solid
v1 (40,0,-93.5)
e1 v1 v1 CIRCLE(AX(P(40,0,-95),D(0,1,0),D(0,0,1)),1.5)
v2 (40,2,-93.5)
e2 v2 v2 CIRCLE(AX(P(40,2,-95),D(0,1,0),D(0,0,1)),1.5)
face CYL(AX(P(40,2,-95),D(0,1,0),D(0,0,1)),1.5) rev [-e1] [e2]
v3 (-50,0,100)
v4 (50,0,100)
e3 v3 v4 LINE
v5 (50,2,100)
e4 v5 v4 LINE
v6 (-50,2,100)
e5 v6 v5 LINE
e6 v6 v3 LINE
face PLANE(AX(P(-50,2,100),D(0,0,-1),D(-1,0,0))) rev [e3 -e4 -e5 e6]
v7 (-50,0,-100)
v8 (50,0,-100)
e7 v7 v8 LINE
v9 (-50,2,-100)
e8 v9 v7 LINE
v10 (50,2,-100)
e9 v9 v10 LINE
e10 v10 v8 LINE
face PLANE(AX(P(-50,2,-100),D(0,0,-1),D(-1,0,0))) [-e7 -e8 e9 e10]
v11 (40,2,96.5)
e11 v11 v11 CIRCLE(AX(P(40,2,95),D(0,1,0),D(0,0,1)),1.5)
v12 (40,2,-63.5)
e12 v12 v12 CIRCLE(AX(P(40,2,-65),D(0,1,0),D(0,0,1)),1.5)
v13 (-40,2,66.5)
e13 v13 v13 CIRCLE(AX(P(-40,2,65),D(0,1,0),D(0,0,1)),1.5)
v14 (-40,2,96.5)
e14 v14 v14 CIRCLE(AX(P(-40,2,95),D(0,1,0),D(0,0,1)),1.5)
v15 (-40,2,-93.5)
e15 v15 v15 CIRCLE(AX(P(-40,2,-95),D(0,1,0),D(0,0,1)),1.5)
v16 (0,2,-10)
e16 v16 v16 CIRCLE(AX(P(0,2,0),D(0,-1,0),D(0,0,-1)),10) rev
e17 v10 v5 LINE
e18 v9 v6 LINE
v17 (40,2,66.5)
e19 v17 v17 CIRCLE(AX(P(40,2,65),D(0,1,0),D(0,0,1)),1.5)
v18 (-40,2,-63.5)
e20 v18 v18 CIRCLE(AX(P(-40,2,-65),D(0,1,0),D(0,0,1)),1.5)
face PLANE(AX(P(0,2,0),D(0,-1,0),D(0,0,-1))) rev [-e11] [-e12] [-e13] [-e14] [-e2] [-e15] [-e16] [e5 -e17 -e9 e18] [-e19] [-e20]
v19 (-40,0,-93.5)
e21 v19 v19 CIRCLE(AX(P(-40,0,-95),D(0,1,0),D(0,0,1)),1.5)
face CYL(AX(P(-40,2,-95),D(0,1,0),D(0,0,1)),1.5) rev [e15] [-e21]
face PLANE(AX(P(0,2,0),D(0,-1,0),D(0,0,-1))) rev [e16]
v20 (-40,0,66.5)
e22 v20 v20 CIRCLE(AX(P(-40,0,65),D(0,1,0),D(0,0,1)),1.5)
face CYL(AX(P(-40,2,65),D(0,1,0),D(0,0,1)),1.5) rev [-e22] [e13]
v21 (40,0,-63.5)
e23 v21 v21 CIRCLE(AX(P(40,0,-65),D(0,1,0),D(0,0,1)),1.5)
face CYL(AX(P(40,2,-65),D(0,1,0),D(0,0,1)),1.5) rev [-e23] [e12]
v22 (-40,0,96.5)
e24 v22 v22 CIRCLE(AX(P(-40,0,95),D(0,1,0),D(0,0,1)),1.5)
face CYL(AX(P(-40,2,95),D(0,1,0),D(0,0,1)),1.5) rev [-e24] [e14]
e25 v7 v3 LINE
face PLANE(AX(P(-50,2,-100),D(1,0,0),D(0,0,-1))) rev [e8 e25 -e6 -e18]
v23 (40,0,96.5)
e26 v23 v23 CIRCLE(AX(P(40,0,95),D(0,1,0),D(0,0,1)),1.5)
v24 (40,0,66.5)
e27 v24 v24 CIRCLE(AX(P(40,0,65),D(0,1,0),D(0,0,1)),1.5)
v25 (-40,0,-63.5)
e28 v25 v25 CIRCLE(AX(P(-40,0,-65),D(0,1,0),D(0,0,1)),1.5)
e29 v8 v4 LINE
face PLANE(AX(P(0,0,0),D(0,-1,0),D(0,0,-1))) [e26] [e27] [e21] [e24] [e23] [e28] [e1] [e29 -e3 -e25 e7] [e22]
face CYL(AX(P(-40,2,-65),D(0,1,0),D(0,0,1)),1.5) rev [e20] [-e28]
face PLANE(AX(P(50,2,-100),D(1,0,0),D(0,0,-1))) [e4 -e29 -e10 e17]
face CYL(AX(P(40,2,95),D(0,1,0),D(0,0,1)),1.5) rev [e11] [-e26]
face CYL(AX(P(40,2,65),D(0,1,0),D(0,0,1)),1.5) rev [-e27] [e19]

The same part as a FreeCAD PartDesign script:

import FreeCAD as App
import Part
import Sketcher
from FreeCAD import Vector

doc = App.newDocument("Part")
params = doc.addObject("Spreadsheet::Sheet", "Params")
for row, (alias, value) in enumerate([
    ("sketch1_width", "100 mm"),
    ("sketch1_height", "200 mm"),
    ("pad1_length", "2 mm"),
    ("sketch2_diameter", "3 mm"),
    ("hole_diameter", "3 mm"),
], start=1):
    params.set(f"A{row}", alias)
    params.set(f"B{row}", "=" + value)
    params.setAlias(f"B{row}", alias)

body = doc.addObject("PartDesign::Body", "Body")

# Sketch on XZ plane
sketch1 = doc.addObject("Sketcher::SketchObject", "Sketch")
body.addObject(sketch1)
sketch1.AttachmentSupport = (doc.XZ_Plane, [""])
sketch1.MapMode = "FlatFace"
sketch1.addGeometry([
    Part.LineSegment(Vector(-50, -100, 0), Vector(-50, 100, 0)),
    Part.LineSegment(Vector(-50, 100, 0), Vector(50, 100, 0)),
    Part.LineSegment(Vector(50, 100, 0), Vector(50, -100, 0)),
    Part.LineSegment(Vector(50, -100, 0), Vector(-50, -100, 0)),
], False)
sketch1.addConstraint([
    Sketcher.Constraint("Coincident", 0, 2, 1, 1),
    Sketcher.Constraint("Coincident", 1, 2, 2, 1),
    Sketcher.Constraint("Coincident", 2, 2, 3, 1),
    Sketcher.Constraint("Coincident", 3, 2, 0, 1),
    Sketcher.Constraint("Vertical", 0),
    Sketcher.Constraint("Horizontal", 1),
    Sketcher.Constraint("Vertical", 2),
    Sketcher.Constraint("Horizontal", 3),
    Sketcher.Constraint("Symmetric", 0, 2, 2, 2, -1, 1),
    Sketcher.Constraint("DistanceX", 1, 1, 1, 2, 100.0),
    Sketcher.Constraint("DistanceY", 0, 1, 0, 2, 200.0),
])
sketch1.setExpression("Constraints[9]", "Params.sketch1_width")
sketch1.setExpression("Constraints[10]", "Params.sketch1_height")
pad1 = doc.addObject("PartDesign::Pad", "Pad")
body.addObject(pad1)
pad1.Profile = sketch1
pad1.setExpression("Length", "Params.pad1_length")
pad1.Reversed = True

# Sketch on XZ plane
sketch2 = doc.addObject("Sketcher::SketchObject", "Sketch001")
body.addObject(sketch2)
sketch2.AttachmentSupport = (doc.XZ_Plane, [""])
sketch2.MapMode = "FlatFace"
sketch2.AttachmentOffset = App.Placement(Vector(0, 0, -2), App.Rotation())
sketch2.addGeometry([
    Part.Circle(Vector(-40, -95, 0), Vector(0, 0, 1), 1.5),  # 0
    Part.Circle(Vector(40, -95, 0), Vector(0, 0, 1), 1.5),  # 1
    Part.Circle(Vector(-40, -65, 0), Vector(0, 0, 1), 1.5),  # 2
    Part.Circle(Vector(40, -65, 0), Vector(0, 0, 1), 1.5),  # 3
    Part.Circle(Vector(-40, 65, 0), Vector(0, 0, 1), 1.5),  # 4
    Part.Circle(Vector(-40, 95, 0), Vector(0, 0, 1), 1.5),  # 5
    Part.Circle(Vector(40, 65, 0), Vector(0, 0, 1), 1.5),  # 6
    Part.Circle(Vector(40, 95, 0), Vector(0, 0, 1), 1.5),  # 7
], False)
sketch2.addConstraint([
    Sketcher.Constraint("Equal", 0, 1),
    Sketcher.Constraint("Equal", 1, 2),
    Sketcher.Constraint("Equal", 2, 3),
    Sketcher.Constraint("Equal", 3, 4),
    Sketcher.Constraint("Equal", 4, 5),
    Sketcher.Constraint("Equal", 5, 6),
    Sketcher.Constraint("Equal", 6, 7),
    Sketcher.Constraint("Symmetric", 3, 3, 4, 3, -1, 1),
    Sketcher.Constraint("Symmetric", 1, 3, 5, 3, -1, 1),
    Sketcher.Constraint("Symmetric", 2, 3, 6, 3, -1, 1),
    Sketcher.Constraint("Symmetric", 0, 3, 7, 3, -1, 1),
    Sketcher.Constraint("Symmetric", 0, 3, 1, 3, -2),
    Sketcher.Constraint("Symmetric", 2, 3, 3, 3, -2),
    Sketcher.Constraint("Vertical", 0, 3, 2, 3),
    Sketcher.Constraint("Diameter", 0, 3.0),
    Sketcher.Constraint("DistanceX", 0, 3, -1, 1, 40.0),
    Sketcher.Constraint("DistanceY", 0, 3, -1, 1, 95.0),
    Sketcher.Constraint("DistanceY", 2, 3, -1, 1, 65.0),
])
sketch2.setExpression("Constraints[14]", "Params.sketch2_diameter")
doc.recompute()
hole = doc.addObject("PartDesign::Hole", "Hole")
body.addObject(hole)
hole.Profile = sketch2
hole.ThreadType = "None"
hole.setExpression("Diameter", "Params.hole_diameter")
hole.DepthType = "ThroughAll"
hole.Reversed = True

doc.recompute()
